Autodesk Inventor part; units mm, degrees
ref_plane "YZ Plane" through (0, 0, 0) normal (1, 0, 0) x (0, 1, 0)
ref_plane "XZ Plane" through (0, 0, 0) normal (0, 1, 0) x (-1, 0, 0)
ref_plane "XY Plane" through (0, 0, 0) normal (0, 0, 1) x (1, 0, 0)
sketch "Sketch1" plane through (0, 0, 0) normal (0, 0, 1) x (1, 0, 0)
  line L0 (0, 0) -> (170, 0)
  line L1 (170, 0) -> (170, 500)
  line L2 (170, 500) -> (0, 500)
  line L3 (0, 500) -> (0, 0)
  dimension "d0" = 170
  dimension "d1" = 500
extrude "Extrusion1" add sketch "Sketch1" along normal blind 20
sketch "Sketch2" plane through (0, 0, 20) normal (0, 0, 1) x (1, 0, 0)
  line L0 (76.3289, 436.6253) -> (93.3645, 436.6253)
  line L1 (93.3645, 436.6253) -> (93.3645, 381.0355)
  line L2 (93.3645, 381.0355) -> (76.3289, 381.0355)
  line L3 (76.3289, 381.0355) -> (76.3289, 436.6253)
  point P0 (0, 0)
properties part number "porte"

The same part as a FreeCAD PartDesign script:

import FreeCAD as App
import Part
import Sketcher
Q = App.Units.Quantity

doc = App.newDocument("Part")
body = doc.addObject("PartDesign::Body", "Body")

# Sketch on XY plane
sketch1 = doc.addObject("Sketcher::SketchObject", "Sketch")
body.addObject(sketch1)
sketch1.AttachmentSupport = (doc.XY_Plane, [""])
sketch1.MapMode = "FlatFace"
sketch1.addGeometry([
    Part.LineSegment(App.Vector(0, 500, 0), App.Vector(0, 0, 0)),
    Part.LineSegment(App.Vector(0, 0, 0), App.Vector(170, 0, 0)),
    Part.LineSegment(App.Vector(170, 0, 0), App.Vector(170, 500, 0)),
    Part.LineSegment(App.Vector(170, 500, 0), App.Vector(0, 500, 0)),
], False)
sketch1.addConstraint([
    Sketcher.Constraint("Coincident", 0, 2, 1, 1),
    Sketcher.Constraint("Coincident", 1, 2, 2, 1),
    Sketcher.Constraint("Coincident", 2, 2, 3, 1),
    Sketcher.Constraint("Coincident", 3, 2, 0, 1),
    Sketcher.Constraint("Vertical", 0),
    Sketcher.Constraint("Horizontal", 1),
    Sketcher.Constraint("Vertical", 2),
    Sketcher.Constraint("Horizontal", 3),
    Sketcher.Constraint("Coincident", 0, 2, -1, 1),
    Sketcher.Constraint("DistanceX", 1, 1, 1, 2, Q("170 mm")),
    Sketcher.Constraint("DistanceY", 0, 2, 0, 1, Q("500 mm")),
])
pad1 = doc.addObject("PartDesign::Pad", "Pad")
body.addObject(pad1)
pad1.Profile = sketch1
pad1.Length = 20

doc.recompute()
